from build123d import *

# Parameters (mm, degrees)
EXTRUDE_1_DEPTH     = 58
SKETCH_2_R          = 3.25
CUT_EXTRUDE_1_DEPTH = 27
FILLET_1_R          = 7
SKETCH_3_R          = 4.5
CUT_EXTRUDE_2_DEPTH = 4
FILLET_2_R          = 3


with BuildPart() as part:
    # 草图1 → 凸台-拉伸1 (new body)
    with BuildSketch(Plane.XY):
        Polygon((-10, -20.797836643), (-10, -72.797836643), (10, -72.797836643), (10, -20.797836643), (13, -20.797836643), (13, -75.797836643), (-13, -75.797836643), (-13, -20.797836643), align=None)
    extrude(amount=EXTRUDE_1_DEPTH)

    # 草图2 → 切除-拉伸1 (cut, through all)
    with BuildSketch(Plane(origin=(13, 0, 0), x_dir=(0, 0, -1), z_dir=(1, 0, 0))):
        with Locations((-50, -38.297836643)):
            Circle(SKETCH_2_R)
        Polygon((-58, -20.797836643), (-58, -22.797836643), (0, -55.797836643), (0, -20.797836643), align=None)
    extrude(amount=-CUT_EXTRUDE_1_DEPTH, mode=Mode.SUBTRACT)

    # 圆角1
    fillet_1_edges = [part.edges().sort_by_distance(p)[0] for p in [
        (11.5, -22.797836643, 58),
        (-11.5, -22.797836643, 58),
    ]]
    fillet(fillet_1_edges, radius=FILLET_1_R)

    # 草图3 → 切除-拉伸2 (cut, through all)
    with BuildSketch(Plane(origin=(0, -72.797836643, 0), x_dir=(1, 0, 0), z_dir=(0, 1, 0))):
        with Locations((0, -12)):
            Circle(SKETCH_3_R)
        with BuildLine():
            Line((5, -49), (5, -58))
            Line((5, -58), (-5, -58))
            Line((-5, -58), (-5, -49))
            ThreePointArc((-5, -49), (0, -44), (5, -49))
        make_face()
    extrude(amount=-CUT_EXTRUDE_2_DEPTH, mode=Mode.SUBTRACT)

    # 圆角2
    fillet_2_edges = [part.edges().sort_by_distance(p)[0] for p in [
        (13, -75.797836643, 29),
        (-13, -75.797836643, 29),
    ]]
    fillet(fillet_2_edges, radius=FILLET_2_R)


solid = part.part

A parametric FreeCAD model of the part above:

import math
import FreeCAD as App
import Part
import Sketcher

V = App.Vector
Q = App.Units.Quantity


def edges_at(feature, points):
    """Names of the edges that pass closest to the given points."""
    edges = feature.Shape.Edges
    near = lambda p: min(range(len(edges)), key=lambda i: edges[i].distToShape(Part.Vertex(*p))[0])
    return sorted({f"Edge{near(p) + 1}" for p in points})


def add_polygon(sketch, points):
    """Adds a closed chain of lines whose ends are joined by coincident constraints."""
    first, n = sketch.GeometryCount, len(points)
    for a, b in zip(points, points[1:] + points[:1]):
        sketch.addGeometry(Part.LineSegment(App.Vector(*a, 0), App.Vector(*b, 0)), False)
    for i in range(n):
        sketch.addConstraint(Sketcher.Constraint("Coincident", first + i, 2, first + (i + 1) % n, 1))

doc = App.newDocument("Part")
body = doc.addObject("PartDesign::Body", "Body")

sketch1 = body.newObject("Sketcher::SketchObject", "Sketch")
sketch1.AttachmentSupport = (doc.getObject("XY_Plane"), [""])
sketch1.MapMode = "FlatFace"
add_polygon(sketch1, [(-10, -72.8), (-10, -20.8), (-13, -20.8), (-13, -75.8), (13, -75.8), (13, -20.8), (10, -20.8), (10, -72.8)])
sketch1.addConstraint(Sketcher.Constraint("Vertical", 0))
sketch1.addConstraint(Sketcher.Constraint("Horizontal", 1))
sketch1.addConstraint(Sketcher.Constraint("Vertical", 2))
sketch1.addConstraint(Sketcher.Constraint("Horizontal", 3))
sketch1.addConstraint(Sketcher.Constraint("Vertical", 4))
sketch1.addConstraint(Sketcher.Constraint("Horizontal", 5))
sketch1.addConstraint(Sketcher.Constraint("Vertical", 6))
sketch1.addConstraint(Sketcher.Constraint("Horizontal", 7))
sketch1.addConstraint(Sketcher.Constraint("Symmetric", 1, 2, 4, 2, -2))
sketch1.addConstraint(Sketcher.Constraint("Equal", 1, 5))
sketch1.addConstraint(Sketcher.Constraint("DistanceX", 1, 2, 1, 1, Q("3 mm")))
sketch1.addConstraint(Sketcher.Constraint("DistanceX", 3, 1, 3, 2, Q("26 mm")))
sketch1.addConstraint(Sketcher.Constraint("DistanceY", 0, 1, 0, 2, Q("52 mm")))
sketch1.addConstraint(Sketcher.Constraint("DistanceY", 2, 2, 2, 1, Q("55 mm")))
sketch1.addConstraint(Sketcher.Constraint("DistanceY", 0, 2, -1, 1, Q("20.797837 mm")))
pad1 = body.newObject("PartDesign::Pad", "Pad")
pad1.Profile = sketch1
pad1.Length = 58

sketch2 = body.newObject("Sketcher::SketchObject", "Sketch001")
sketch2.AttachmentSupport = (doc.getObject("YZ_Plane"), [""])
sketch2.MapMode = "FlatFace"
sketch2.AttachmentOffset = App.Placement(V(0, 0, 13), App.Rotation())
sketch2.addGeometry(Part.Circle(V(-38.3, 50, 0), V(0, 0, 1), 3.2), False)
add_polygon(sketch2, [(-20.8, 58), (-22.8, 58), (-55.8, 0), (-20.8, 0)])
sketch2.addConstraint(Sketcher.Constraint("Horizontal", 1))
sketch2.addConstraint(Sketcher.Constraint("Horizontal", 3))
sketch2.addConstraint(Sketcher.Constraint("Vertical", 4))
sketch2.addConstraint(Sketcher.Constraint("PointOnObject", 2, 2, -1))
sketch2.addConstraint(Sketcher.Constraint("Diameter", 0, Q("6.5 mm")))
sketch2.addConstraint(Sketcher.Constraint("DistanceX", 1, 2, 1, 1, Q("2 mm")))
sketch2.addConstraint(Sketcher.Constraint("DistanceX", 3, 1, 3, 2, Q("35 mm")))
sketch2.addConstraint(Sketcher.Constraint("DistanceY", 4, 1, 4, 2, Q("58 mm")))
sketch2.addConstraint(Sketcher.Constraint("DistanceY", -1, 1, 0, 3, Q("50 mm")))
sketch2.addConstraint(Sketcher.Constraint("DistanceX", 0, 3, 1, 2, Q("15.5 mm")))
sketch2.addConstraint(Sketcher.Constraint("DistanceX", 0, 3, -1, 1, Q("38.297837 mm")))
pocket1 = body.newObject("PartDesign::Pocket", "Pocket")
pocket1.Profile = sketch2
pocket1.Type = "ThroughAll"
doc.recompute()

fillet = body.newObject("PartDesign::Fillet", "Fillet")
fillet.Base = (pocket1, edges_at(pocket1, [(11.5, -22.798, 58), (-11.5, -22.798, 58)]))
fillet.Radius = 7

sketch3 = body.newObject("Sketcher::SketchObject", "Sketch002")
sketch3.AttachmentSupport = (doc.getObject("XZ_Plane"), [""])
sketch3.MapMode = "FlatFace"
sketch3.AttachmentOffset = App.Placement(V(0, 0, 72.797837), App.Rotation())
sketch3.addGeometry(Part.Circle(V(0, 12, 0), V(0, 0, 1), 4.5), False)
sketch3.addGeometry(Part.LineSegment(V(5, 58, 0), V(5, 49, 0)), False)
sketch3.addGeometry(Part.ArcOfCircle(Part.Circle(V(0, 49, 0), V(0, 0, 1), 5), math.radians(180), math.radians(360)), False)
sketch3.addGeometry(Part.LineSegment(V(-5, 49, 0), V(-5, 58, 0)), False)
sketch3.addGeometry(Part.LineSegment(V(-5, 58, 0), V(5, 58, 0)), False)
sketch3.addConstraint(Sketcher.Constraint("Tangent", 1, 2, 2, 2))
sketch3.addConstraint(Sketcher.Constraint("Tangent", 2, 1, 3, 1))
sketch3.addConstraint(Sketcher.Constraint("Coincident", 3, 2, 4, 1))
sketch3.addConstraint(Sketcher.Constraint("Coincident", 4, 2, 1, 1))
sketch3.addConstraint(Sketcher.Constraint("Vertical", 1))
sketch3.addConstraint(Sketcher.Constraint("Vertical", 3))
sketch3.addConstraint(Sketcher.Constraint("Horizontal", 4))
sketch3.addConstraint(Sketcher.Constraint("PointOnObject", 0, 3, -2))
sketch3.addConstraint(Sketcher.Constraint("PointOnObject", 2, 3, -2))
sketch3.addConstraint(Sketcher.Constraint("Diameter", 0, Q("9 mm")))
sketch3.addConstraint(Sketcher.Constraint("Radius", 2, Q("5 mm")))
sketch3.addConstraint(Sketcher.Constraint("DistanceY", 1, 2, 1, 1, Q("9 mm")))
sketch3.addConstraint(Sketcher.Constraint("DistanceY", -1, 1, 0, 3, Q("12 mm")))
sketch3.addConstraint(Sketcher.Constraint("DistanceY", -1, 1, 2, 3, Q("49 mm")))
pocket2 = body.newObject("PartDesign::Pocket", "Pocket001")
pocket2.Profile = sketch3
pocket2.Type = "ThroughAll"
pocket2.Reversed = True
doc.recompute()

fillet2 = body.newObject("PartDesign::Fillet", "Fillet001")
fillet2.Base = (pocket2, edges_at(pocket2, [(13, -75.798, 29), (-13, -75.798, 29)]))
fillet2.Radius = 3

doc.recompute()
